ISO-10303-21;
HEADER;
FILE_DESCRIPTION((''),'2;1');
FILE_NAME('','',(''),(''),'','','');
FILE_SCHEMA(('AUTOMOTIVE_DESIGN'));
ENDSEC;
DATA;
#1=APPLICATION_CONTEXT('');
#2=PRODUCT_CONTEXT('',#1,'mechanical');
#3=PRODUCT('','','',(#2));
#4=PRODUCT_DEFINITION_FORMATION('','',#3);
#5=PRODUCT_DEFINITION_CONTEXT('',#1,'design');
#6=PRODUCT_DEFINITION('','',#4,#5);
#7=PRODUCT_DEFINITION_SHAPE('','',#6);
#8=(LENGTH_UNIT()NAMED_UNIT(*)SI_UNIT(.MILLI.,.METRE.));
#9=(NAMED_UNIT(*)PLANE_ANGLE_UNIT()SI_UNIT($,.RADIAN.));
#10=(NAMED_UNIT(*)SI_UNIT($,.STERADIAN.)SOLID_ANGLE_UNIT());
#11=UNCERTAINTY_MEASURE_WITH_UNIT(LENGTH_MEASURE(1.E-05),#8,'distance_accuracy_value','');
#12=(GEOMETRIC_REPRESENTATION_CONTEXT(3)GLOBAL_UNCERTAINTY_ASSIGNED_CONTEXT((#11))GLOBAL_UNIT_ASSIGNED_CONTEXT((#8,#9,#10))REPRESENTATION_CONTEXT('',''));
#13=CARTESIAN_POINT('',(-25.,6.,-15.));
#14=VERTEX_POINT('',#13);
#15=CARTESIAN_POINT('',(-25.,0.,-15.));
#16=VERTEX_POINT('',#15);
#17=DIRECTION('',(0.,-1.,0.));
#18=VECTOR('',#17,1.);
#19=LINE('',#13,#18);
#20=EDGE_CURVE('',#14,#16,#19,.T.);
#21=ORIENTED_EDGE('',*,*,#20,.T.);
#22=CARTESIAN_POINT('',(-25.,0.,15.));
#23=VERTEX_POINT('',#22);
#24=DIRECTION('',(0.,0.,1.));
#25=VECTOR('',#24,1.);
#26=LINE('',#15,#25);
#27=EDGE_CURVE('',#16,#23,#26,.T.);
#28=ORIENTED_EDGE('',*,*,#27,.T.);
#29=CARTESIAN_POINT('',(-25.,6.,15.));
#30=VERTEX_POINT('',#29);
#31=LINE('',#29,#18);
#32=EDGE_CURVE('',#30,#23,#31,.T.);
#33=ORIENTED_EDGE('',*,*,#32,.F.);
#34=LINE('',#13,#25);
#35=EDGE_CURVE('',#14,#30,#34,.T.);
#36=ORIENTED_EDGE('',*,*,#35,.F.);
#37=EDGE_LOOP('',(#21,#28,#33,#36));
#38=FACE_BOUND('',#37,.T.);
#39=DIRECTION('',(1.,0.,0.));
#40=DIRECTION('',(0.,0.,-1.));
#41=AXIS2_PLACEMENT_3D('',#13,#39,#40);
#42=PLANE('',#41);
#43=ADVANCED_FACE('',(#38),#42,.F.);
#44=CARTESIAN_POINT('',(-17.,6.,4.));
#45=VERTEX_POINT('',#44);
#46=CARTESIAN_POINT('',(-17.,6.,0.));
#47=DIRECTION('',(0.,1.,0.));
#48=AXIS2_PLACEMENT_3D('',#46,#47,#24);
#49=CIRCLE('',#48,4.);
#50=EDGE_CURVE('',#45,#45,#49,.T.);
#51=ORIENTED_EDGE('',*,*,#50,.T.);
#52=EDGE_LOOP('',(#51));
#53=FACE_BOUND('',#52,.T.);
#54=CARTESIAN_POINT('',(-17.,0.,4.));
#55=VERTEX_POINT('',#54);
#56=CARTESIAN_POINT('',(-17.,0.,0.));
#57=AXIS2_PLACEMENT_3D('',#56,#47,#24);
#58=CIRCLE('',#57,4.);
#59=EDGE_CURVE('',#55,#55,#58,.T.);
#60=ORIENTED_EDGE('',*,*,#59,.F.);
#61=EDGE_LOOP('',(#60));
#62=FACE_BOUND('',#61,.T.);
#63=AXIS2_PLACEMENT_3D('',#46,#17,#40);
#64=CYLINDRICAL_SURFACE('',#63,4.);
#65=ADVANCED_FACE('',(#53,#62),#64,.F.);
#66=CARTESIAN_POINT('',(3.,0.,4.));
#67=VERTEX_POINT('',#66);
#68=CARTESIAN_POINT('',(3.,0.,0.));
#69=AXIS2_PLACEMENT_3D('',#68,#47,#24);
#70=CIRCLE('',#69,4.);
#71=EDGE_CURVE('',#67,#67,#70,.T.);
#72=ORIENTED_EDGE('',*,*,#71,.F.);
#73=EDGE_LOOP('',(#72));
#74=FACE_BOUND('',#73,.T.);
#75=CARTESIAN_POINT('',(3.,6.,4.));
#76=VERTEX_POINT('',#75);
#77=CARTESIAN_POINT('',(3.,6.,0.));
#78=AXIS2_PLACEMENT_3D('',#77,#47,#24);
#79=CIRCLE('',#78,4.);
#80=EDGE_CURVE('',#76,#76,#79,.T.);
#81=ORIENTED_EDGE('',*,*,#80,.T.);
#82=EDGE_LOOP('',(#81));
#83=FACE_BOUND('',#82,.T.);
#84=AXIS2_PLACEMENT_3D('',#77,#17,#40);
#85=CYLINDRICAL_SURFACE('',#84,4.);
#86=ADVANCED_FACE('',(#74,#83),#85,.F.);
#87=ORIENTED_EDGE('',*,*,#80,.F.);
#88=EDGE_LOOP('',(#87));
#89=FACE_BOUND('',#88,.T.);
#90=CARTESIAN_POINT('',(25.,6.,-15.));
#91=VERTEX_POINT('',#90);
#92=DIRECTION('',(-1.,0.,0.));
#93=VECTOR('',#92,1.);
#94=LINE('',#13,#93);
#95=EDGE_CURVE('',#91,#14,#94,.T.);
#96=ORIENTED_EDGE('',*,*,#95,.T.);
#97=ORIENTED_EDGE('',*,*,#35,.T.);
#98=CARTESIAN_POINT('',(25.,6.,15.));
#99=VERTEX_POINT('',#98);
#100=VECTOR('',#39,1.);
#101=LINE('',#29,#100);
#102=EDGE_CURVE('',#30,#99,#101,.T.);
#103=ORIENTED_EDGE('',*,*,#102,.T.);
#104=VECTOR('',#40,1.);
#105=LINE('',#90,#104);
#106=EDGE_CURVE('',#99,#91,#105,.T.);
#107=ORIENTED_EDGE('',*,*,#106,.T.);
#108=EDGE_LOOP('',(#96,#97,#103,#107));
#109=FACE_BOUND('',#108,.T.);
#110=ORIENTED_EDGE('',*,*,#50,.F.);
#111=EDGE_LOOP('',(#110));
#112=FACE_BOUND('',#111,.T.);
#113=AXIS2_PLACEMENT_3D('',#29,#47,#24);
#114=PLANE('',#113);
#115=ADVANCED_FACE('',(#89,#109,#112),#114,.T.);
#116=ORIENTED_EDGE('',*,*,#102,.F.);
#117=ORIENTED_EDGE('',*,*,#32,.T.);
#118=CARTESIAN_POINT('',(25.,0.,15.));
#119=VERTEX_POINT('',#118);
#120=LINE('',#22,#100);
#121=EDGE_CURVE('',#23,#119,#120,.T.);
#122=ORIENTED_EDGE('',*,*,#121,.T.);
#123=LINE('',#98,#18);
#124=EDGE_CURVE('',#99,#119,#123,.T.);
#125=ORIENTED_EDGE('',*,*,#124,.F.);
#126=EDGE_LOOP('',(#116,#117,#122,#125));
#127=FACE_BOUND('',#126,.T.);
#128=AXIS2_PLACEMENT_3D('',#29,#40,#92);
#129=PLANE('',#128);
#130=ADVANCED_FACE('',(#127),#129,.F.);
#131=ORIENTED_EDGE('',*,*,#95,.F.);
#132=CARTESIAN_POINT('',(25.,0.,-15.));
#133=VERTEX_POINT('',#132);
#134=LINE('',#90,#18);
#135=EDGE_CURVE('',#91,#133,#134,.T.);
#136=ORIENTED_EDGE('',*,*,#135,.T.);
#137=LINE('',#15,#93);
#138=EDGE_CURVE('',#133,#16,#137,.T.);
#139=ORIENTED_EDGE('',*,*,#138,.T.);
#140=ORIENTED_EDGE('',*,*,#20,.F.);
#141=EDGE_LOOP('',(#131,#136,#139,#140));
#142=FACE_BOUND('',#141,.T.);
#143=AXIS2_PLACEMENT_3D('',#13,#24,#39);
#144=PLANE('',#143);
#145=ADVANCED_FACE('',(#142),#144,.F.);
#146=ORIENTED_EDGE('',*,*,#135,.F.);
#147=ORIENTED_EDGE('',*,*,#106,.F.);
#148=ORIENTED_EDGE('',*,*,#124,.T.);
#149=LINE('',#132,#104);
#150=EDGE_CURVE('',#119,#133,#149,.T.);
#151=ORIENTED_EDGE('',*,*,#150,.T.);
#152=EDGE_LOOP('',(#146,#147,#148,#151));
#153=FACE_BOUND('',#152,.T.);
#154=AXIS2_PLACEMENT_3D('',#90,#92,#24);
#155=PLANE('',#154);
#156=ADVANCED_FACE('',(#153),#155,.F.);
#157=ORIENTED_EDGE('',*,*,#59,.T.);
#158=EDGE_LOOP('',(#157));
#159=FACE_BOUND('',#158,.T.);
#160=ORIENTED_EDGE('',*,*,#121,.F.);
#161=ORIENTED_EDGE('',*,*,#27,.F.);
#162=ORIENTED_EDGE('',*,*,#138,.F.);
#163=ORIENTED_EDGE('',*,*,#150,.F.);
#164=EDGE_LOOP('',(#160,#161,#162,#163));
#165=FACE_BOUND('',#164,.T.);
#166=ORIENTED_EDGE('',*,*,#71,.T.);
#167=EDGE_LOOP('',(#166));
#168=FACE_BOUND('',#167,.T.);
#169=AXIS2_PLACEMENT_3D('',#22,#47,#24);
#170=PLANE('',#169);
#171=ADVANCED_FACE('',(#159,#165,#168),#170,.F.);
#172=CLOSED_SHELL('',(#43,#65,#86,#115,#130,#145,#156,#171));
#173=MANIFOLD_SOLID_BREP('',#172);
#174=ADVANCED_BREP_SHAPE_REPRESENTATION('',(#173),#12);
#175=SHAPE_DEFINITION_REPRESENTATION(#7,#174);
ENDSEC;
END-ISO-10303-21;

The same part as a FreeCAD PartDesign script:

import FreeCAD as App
import Part
import Sketcher
from FreeCAD import Vector

doc = App.newDocument("Part")
body = doc.addObject("PartDesign::Body", "Body")

sketch1 = body.newObject("Sketcher::SketchObject", "Sketch")
sketch1.AttachmentSupport = (doc.getObject("XZ_Plane"), [""])
sketch1.MapMode = "FlatFace"
sketch1.addGeometry([
    Part.LineSegment(Vector(-25, -15, 0), Vector(-25, 15, 0)),
    Part.LineSegment(Vector(-25, 15, 0), Vector(25, 15, 0)),
    Part.LineSegment(Vector(25, 15, 0), Vector(25, -15, 0)),
    Part.LineSegment(Vector(25, -15, 0), Vector(-25, -15, 0)),
    Part.Circle(Vector(-17, 0, 0), Vector(0, 0, 1), 4),
    Part.Circle(Vector(3, 0, 0), Vector(0, 0, 1), 4),
], False)
sketch1.addConstraint([
    Sketcher.Constraint("Coincident", 0, 2, 1, 1),
    Sketcher.Constraint("Coincident", 1, 2, 2, 1),
    Sketcher.Constraint("Coincident", 2, 2, 3, 1),
    Sketcher.Constraint("Coincident", 3, 2, 0, 1),
    Sketcher.Constraint("Vertical", 0),
    Sketcher.Constraint("Horizontal", 1),
    Sketcher.Constraint("Vertical", 2),
    Sketcher.Constraint("Horizontal", 3),
    Sketcher.Constraint("Equal", 4, 5),
    Sketcher.Constraint("Symmetric", 0, 2, 2, 2, -1, 1),
    Sketcher.Constraint("PointOnObject", 4, 3, -1),
    Sketcher.Constraint("PointOnObject", 5, 3, -1),
    Sketcher.Constraint("Diameter", 4, 8.0),
    Sketcher.Constraint("DistanceX", 1, 1, 1, 2, 50.0),
    Sketcher.Constraint("DistanceY", 0, 1, 0, 2, 30.0),
    Sketcher.Constraint("DistanceX", 4, 3, -1, 1, 17.0),
    Sketcher.Constraint("DistanceX", -1, 1, 5, 3, 3.0),
])
pad1 = body.newObject("PartDesign::Pad", "Pad")
pad1.Profile = sketch1
pad1.Length = 6
pad1.Reversed = True

doc.recompute()
